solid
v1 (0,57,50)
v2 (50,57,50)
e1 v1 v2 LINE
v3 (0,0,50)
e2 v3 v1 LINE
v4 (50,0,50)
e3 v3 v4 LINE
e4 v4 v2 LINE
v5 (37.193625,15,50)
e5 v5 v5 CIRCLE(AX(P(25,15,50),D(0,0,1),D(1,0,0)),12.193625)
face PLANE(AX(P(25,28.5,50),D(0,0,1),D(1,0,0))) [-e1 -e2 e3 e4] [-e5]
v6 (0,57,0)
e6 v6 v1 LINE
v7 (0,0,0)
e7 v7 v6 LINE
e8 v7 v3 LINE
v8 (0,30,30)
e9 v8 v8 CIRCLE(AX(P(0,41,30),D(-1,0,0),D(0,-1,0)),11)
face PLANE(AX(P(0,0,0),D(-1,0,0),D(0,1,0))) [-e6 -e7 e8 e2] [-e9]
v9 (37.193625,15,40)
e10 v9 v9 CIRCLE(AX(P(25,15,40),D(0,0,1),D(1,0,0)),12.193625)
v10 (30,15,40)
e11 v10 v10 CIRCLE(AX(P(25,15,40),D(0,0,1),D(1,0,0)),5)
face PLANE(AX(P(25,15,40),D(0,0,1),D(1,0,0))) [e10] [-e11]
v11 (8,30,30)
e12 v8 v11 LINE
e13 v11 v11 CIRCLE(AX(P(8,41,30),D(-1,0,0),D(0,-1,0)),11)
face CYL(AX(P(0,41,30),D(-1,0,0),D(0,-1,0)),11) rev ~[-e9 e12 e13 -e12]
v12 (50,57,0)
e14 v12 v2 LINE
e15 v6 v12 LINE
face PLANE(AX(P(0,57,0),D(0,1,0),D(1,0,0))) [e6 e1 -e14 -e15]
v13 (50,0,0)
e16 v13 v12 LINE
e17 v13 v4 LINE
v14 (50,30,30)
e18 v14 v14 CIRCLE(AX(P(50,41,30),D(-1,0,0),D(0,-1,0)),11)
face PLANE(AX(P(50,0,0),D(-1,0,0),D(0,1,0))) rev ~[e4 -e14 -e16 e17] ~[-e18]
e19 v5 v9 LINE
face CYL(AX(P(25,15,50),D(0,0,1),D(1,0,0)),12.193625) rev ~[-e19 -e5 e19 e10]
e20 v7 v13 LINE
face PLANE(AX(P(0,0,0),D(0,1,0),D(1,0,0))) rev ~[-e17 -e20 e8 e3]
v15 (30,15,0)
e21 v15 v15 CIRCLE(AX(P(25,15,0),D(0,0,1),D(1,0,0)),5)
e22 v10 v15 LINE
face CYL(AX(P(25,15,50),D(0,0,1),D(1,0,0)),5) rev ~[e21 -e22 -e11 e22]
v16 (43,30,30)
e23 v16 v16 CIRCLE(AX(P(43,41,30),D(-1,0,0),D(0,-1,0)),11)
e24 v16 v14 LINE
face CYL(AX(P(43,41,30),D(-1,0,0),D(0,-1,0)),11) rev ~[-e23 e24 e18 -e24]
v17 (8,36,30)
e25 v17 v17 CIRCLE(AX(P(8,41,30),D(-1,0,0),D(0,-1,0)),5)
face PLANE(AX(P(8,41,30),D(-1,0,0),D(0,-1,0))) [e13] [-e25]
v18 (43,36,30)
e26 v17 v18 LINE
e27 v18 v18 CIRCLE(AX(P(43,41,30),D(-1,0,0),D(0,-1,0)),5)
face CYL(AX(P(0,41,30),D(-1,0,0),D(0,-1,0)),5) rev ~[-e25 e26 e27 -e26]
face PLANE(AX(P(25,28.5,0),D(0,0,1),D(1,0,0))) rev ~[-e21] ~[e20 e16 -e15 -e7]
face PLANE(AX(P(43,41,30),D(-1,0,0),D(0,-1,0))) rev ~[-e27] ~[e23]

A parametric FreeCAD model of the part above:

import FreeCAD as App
import Part
import Sketcher

doc = App.newDocument("Part")
params = doc.addObject("Spreadsheet::Sheet", "Params")
for row, (alias, value) in enumerate([
    ("sketch1_width", "50 mm"),
    ("sketch1_height", "57 mm"),
    ("pad1_length", "50 mm"),
    ("sketch2_diameter", "10 mm"),
    ("sketch3_diameter", "10 mm"),
    ("sketch4_diameter", "22 mm"),
    ("sketch4_diameter2", "10 mm"),
    ("pocket3_length", "8 mm"),
    ("sketch5_diameter", "22 mm"),
    ("sketch5_diameter2", "10 mm"),
    ("pocket4_length", "7 mm"),
    ("sketch6_diameter", "10 mm"),
    ("pocket5_length", "10 mm"),
], start=1):
    params.set(f"A{row}", alias)
    params.set(f"B{row}", "=" + value)
    params.setAlias(f"B{row}", alias)

body = doc.addObject("PartDesign::Body", "Body")

sketch1 = body.newObject("Sketcher::SketchObject", "Sketch")
sketch1.AttachmentSupport = (doc.getObject("XY_Plane"), [""])
sketch1.MapMode = "FlatFace"
sketch1.addGeometry(Part.LineSegment(App.Vector(0, 57, 0), App.Vector(0, 0, 0)), False)
sketch1.addGeometry(Part.LineSegment(App.Vector(0, 0, 0), App.Vector(50, 0, 0)), False)
sketch1.addGeometry(Part.LineSegment(App.Vector(50, 0, 0), App.Vector(50, 57, 0)), False)
sketch1.addGeometry(Part.LineSegment(App.Vector(50, 57, 0), App.Vector(0, 57, 0)), False)
sketch1.addConstraint(Sketcher.Constraint("Coincident", 0, 2, 1, 1))
sketch1.addConstraint(Sketcher.Constraint("Coincident", 1, 2, 2, 1))
sketch1.addConstraint(Sketcher.Constraint("Coincident", 2, 2, 3, 1))
sketch1.addConstraint(Sketcher.Constraint("Coincident", 3, 2, 0, 1))
sketch1.addConstraint(Sketcher.Constraint("Vertical", 0))
sketch1.addConstraint(Sketcher.Constraint("Horizontal", 1))
sketch1.addConstraint(Sketcher.Constraint("Vertical", 2))
sketch1.addConstraint(Sketcher.Constraint("Horizontal", 3))
sketch1.addConstraint(Sketcher.Constraint("Coincident", 0, 2, -1, 1))
sketch1.addConstraint(Sketcher.Constraint("DistanceX", 1, 1, 1, 2, 50.0))
sketch1.addConstraint(Sketcher.Constraint("DistanceY", 0, 2, 0, 1, 57.0))
sketch1.setExpression("Constraints[9]", "Params.sketch1_width")
sketch1.setExpression("Constraints[10]", "Params.sketch1_height")
pad1 = body.newObject("PartDesign::Pad", "Pad")
pad1.Profile = sketch1
pad1.setExpression("Length", "Params.pad1_length")

sketch2 = body.newObject("Sketcher::SketchObject", "Sketch001")
sketch2.AttachmentSupport = (doc.getObject("XY_Plane"), [""])
sketch2.MapMode = "FlatFace"
sketch2.AttachmentOffset = App.Placement(App.Vector(0, 0, 50), App.Rotation())
sketch2.addGeometry(Part.Circle(App.Vector(25, 15, 0), App.Vector(0, 0, 1), 5), False)
sketch2.addConstraint(Sketcher.Constraint("Diameter", 0, 10.0))
sketch2.addConstraint(Sketcher.Constraint("DistanceX", -1, 1, 0, 3, 25.0))
sketch2.addConstraint(Sketcher.Constraint("DistanceY", -1, 1, 0, 3, 15.0))
sketch2.setExpression("Constraints[0]", "Params.sketch2_diameter")
pocket1 = body.newObject("PartDesign::Pocket", "Pocket")
pocket1.Profile = sketch2
pocket1.Type = "ThroughAll"

sketch3 = body.newObject("Sketcher::SketchObject", "Sketch002")
sketch3.AttachmentSupport = (doc.getObject("YZ_Plane"), [""])
sketch3.MapMode = "FlatFace"
sketch3.addGeometry(Part.Circle(App.Vector(41, 30, 0), App.Vector(0, 0, 1), 5), False)
sketch3.addConstraint(Sketcher.Constraint("Diameter", 0, 10.0))
sketch3.addConstraint(Sketcher.Constraint("DistanceX", -1, 1, 0, 3, 41.0))
sketch3.addConstraint(Sketcher.Constraint("DistanceY", -1, 1, 0, 3, 30.0))
sketch3.setExpression("Constraints[0]", "Params.sketch3_diameter")
pocket2 = body.newObject("PartDesign::Pocket", "Pocket001")
pocket2.Profile = sketch3
pocket2.Type = "ThroughAll"
pocket2.Reversed = True

sketch4 = body.newObject("Sketcher::SketchObject", "Sketch003")
sketch4.AttachmentSupport = (doc.getObject("YZ_Plane"), [""])
sketch4.MapMode = "FlatFace"
sketch4.addGeometry(Part.Circle(App.Vector(41, 30, 0), App.Vector(0, 0, 1), 11), False)
sketch4.addGeometry(Part.Circle(App.Vector(41, 30, 0), App.Vector(0, 0, 1), 5), False)
sketch4.addConstraint(Sketcher.Constraint("Coincident", 1, 3, 0, 3))
sketch4.addConstraint(Sketcher.Constraint("Diameter", 0, 22.0))
sketch4.addConstraint(Sketcher.Constraint("Diameter", 1, 10.0))
sketch4.addConstraint(Sketcher.Constraint("DistanceX", -1, 1, 0, 3, 41.0))
sketch4.addConstraint(Sketcher.Constraint("DistanceY", -1, 1, 0, 3, 30.0))
sketch4.setExpression("Constraints[1]", "Params.sketch4_diameter")
sketch4.setExpression("Constraints[2]", "Params.sketch4_diameter2")
pocket3 = body.newObject("PartDesign::Pocket", "Pocket002")
pocket3.Profile = sketch4
pocket3.setExpression("Length", "Params.pocket3_length")
pocket3.Reversed = True

sketch5 = body.newObject("Sketcher::SketchObject", "Sketch004")
sketch5.AttachmentSupport = (doc.getObject("YZ_Plane"), [""])
sketch5.MapMode = "FlatFace"
sketch5.AttachmentOffset = App.Placement(App.Vector(0, 0, 43), App.Rotation())
sketch5.addGeometry(Part.Circle(App.Vector(41, 30, 0), App.Vector(0, 0, 1), 11), False)
sketch5.addGeometry(Part.Circle(App.Vector(41, 30, 0), App.Vector(0, 0, 1), 5), False)
sketch5.addConstraint(Sketcher.Constraint("Coincident", 1, 3, 0, 3))
sketch5.addConstraint(Sketcher.Constraint("Diameter", 0, 22.0))
sketch5.addConstraint(Sketcher.Constraint("Diameter", 1, 10.0))
sketch5.addConstraint(Sketcher.Constraint("DistanceX", -1, 1, 0, 3, 41.0))
sketch5.addConstraint(Sketcher.Constraint("DistanceY", -1, 1, 0, 3, 30.0))
sketch5.setExpression("Constraints[1]", "Params.sketch5_diameter")
sketch5.setExpression("Constraints[2]", "Params.sketch5_diameter2")
pocket4 = body.newObject("PartDesign::Pocket", "Pocket003")
pocket4.Profile = sketch5
pocket4.setExpression("Length", "Params.pocket4_length")
pocket4.Reversed = True

sketch6 = body.newObject("Sketcher::SketchObject", "Sketch005")
sketch6.AttachmentSupport = (doc.getObject("XY_Plane"), [""])
sketch6.MapMode = "FlatFace"
sketch6.AttachmentOffset = App.Placement(App.Vector(0, 0, 50), App.Rotation())
sketch6.addGeometry(Part.Circle(App.Vector(25, 15, 0), App.Vector(0, 0, 1), 12), False)
sketch6.addGeometry(Part.Circle(App.Vector(25, 15, 0), App.Vector(0, 0, 1), 5), False)
sketch6.addConstraint(Sketcher.Constraint("Coincident", 1, 3, 0, 3))
sketch6.addConstraint(Sketcher.Constraint("Diameter", 1, 10.0))
sketch6.addConstraint(Sketcher.Constraint("DistanceX", -1, 1, 0, 3, 25.0))
sketch6.addConstraint(Sketcher.Constraint("DistanceY", -1, 1, 0, 3, 15.0))
sketch6.addConstraint(Sketcher.Constraint("Diameter", 0, 24.387249))
sketch6.setExpression("Constraints[1]", "Params.sketch6_diameter")
pocket5 = body.newObject("PartDesign::Pocket", "Pocket004")
pocket5.Profile = sketch6
pocket5.setExpression("Length", "Params.pocket5_length")

doc.recompute()
